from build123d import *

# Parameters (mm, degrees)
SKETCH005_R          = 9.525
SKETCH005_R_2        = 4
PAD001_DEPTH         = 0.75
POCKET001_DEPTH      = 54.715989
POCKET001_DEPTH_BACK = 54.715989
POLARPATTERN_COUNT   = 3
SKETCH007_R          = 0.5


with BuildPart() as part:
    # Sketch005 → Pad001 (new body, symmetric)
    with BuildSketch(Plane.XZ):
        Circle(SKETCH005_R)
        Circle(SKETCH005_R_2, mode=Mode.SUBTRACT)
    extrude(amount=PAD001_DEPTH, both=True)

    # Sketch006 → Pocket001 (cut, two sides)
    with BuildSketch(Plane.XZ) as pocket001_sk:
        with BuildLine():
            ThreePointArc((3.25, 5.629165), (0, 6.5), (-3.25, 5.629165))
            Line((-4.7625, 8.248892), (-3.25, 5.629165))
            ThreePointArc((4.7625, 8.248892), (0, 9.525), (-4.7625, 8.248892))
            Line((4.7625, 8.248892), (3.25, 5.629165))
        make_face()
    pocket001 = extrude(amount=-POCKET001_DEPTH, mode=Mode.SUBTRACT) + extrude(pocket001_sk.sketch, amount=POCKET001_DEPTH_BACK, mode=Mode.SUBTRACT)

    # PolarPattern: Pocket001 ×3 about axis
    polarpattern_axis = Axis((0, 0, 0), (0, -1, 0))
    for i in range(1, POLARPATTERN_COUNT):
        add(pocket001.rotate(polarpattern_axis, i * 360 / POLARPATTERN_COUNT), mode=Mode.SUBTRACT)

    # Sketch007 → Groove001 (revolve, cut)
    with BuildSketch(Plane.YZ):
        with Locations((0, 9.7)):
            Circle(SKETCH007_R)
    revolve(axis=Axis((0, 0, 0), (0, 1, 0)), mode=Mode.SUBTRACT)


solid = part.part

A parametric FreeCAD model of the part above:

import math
import FreeCAD as App
import Part
import Sketcher

V = App.Vector
Q = App.Units.Quantity

doc = App.newDocument("Part")
params = doc.addObject("Spreadsheet::Sheet", "Params")
for row, (alias, value) in enumerate([
    ("sketch1_diameter", "8 mm"),
    ("sketch1_diameter2", "19.05 mm"),
    ("pad1_length", "1.5 mm"),
    ("sketch2_radius", "6.499999 mm"),
    ("sketch3_diameter", "1 mm"),
    ("groove_angle", "360 deg"),
], start=1):
    params.set(f"A{row}", alias)
    params.set(f"B{row}", "=" + value)
    params.setAlias(f"B{row}", alias)

body = doc.addObject("PartDesign::Body", "Body")

# Sketch on XZ plane
sketch1 = body.newObject("Sketcher::SketchObject", "Sketch")
sketch1.AttachmentSupport = (doc.getObject("XZ_Plane"), [""])
sketch1.MapMode = "FlatFace"
sketch1.addGeometry([
    Part.Circle(V(0, 0, 0), V(0, 0, 1), 9.5),
    Part.Circle(V(0, 0, 0), V(0, 0, 1), 4),
], False)
sketch1.addConstraint([
    Sketcher.Constraint("Coincident", 0, 3, -1, 1),
    Sketcher.Constraint("Coincident", 1, 3, -1, 1),
    Sketcher.Constraint("Diameter", 1, 8.0),
    Sketcher.Constraint("Diameter", 0, 19.05),
])
sketch1.setExpression("Constraints[2]", "Params.sketch1_diameter")
sketch1.setExpression("Constraints[3]", "Params.sketch1_diameter2")
pad1 = body.newObject("PartDesign::Pad", "Pad")
pad1.Profile = sketch1
pad1.setExpression("Length", "Params.pad1_length")
pad1.Midplane = True

# Sketch on XZ plane
sketch2 = body.newObject("Sketcher::SketchObject", "Sketch001")
sketch2.AttachmentSupport = (doc.getObject("XZ_Plane"), [""])
sketch2.MapMode = "FlatFace"
sketch2.addGeometry([
    Part.ArcOfCircle(Part.Circle(V(0, 0, 0), V(0, 0, 1), 6.5), math.radians(60), math.radians(120)),
    Part.LineSegment(V(3.2, 5.6, 0), V(4.8, 8.2, 0)),
    Part.ArcOfCircle(Part.Circle(V(0, 0, 0), V(0, 0, 1), 9.5), math.radians(60), math.radians(120)),
    Part.LineSegment(V(-4.8, 8.2, 0), V(-3.2, 5.6, 0)),
], False)
sketch2.addConstraint([
    Sketcher.Constraint("Coincident", 0, 1, 1, 1),
    Sketcher.Constraint("Coincident", 1, 2, 2, 1),
    Sketcher.Constraint("Coincident", 2, 2, 3, 1),
    Sketcher.Constraint("Coincident", 3, 2, 0, 2),
    Sketcher.Constraint("Coincident", 0, 3, -1, 1),
    Sketcher.Constraint("Coincident", 2, 3, -1, 1),
    Sketcher.Constraint("Horizontal", 1, 2, 2, 2),
    Sketcher.Constraint("Horizontal", 0, 1, 3, 2),
    Sketcher.Constraint("Radius", 0, 6.499999),
    Sketcher.Constraint("Angle", 1, Q("60.000001 deg")),
    Sketcher.Constraint("Radius", 2, 9.525),
    Sketcher.Constraint("DistanceX", 3, 2, 0, 1, 6.5),
])
sketch2.setExpression("Constraints[8]", "Params.sketch2_radius")
pocket1 = body.newObject("PartDesign::Pocket", "Pocket")
pocket1.Profile = sketch2
pocket1.Type = "ThroughAll"
pocket1.Midplane = True
doc.recompute()

polarpattern = body.newObject("PartDesign::PolarPattern", "PolarPattern")
polarpattern.Originals = [pocket1]
polarpattern.Axis = (doc.getObject("Y_Axis"), [""])
polarpattern.Angle = 360
polarpattern.Occurrences = 3
body.Tip = polarpattern

# Sketch on YZ plane
sketch3 = body.newObject("Sketcher::SketchObject", "Sketch002")
sketch3.AttachmentSupport = (doc.getObject("YZ_Plane"), [""])
sketch3.MapMode = "FlatFace"
sketch3.addGeometry(Part.Circle(V(0, 9.7, 0), V(0, 0, 1), 0.5), False)
sketch3.addConstraint([
    Sketcher.Constraint("PointOnObject", 0, 3, -2),
    Sketcher.Constraint("Diameter", 0, 1.0),
    Sketcher.Constraint("DistanceY", -1, 1, 0, 3, 9.7),
])
sketch3.setExpression("Constraints[1]", "Params.sketch3_diameter")
groove = body.newObject("PartDesign::Groove", "Groove")
groove.Profile = sketch3
groove.ReferenceAxis = (sketch3, ["H_Axis"])
groove.setExpression("Angle", "Params.groove_angle")

doc.recompute()
